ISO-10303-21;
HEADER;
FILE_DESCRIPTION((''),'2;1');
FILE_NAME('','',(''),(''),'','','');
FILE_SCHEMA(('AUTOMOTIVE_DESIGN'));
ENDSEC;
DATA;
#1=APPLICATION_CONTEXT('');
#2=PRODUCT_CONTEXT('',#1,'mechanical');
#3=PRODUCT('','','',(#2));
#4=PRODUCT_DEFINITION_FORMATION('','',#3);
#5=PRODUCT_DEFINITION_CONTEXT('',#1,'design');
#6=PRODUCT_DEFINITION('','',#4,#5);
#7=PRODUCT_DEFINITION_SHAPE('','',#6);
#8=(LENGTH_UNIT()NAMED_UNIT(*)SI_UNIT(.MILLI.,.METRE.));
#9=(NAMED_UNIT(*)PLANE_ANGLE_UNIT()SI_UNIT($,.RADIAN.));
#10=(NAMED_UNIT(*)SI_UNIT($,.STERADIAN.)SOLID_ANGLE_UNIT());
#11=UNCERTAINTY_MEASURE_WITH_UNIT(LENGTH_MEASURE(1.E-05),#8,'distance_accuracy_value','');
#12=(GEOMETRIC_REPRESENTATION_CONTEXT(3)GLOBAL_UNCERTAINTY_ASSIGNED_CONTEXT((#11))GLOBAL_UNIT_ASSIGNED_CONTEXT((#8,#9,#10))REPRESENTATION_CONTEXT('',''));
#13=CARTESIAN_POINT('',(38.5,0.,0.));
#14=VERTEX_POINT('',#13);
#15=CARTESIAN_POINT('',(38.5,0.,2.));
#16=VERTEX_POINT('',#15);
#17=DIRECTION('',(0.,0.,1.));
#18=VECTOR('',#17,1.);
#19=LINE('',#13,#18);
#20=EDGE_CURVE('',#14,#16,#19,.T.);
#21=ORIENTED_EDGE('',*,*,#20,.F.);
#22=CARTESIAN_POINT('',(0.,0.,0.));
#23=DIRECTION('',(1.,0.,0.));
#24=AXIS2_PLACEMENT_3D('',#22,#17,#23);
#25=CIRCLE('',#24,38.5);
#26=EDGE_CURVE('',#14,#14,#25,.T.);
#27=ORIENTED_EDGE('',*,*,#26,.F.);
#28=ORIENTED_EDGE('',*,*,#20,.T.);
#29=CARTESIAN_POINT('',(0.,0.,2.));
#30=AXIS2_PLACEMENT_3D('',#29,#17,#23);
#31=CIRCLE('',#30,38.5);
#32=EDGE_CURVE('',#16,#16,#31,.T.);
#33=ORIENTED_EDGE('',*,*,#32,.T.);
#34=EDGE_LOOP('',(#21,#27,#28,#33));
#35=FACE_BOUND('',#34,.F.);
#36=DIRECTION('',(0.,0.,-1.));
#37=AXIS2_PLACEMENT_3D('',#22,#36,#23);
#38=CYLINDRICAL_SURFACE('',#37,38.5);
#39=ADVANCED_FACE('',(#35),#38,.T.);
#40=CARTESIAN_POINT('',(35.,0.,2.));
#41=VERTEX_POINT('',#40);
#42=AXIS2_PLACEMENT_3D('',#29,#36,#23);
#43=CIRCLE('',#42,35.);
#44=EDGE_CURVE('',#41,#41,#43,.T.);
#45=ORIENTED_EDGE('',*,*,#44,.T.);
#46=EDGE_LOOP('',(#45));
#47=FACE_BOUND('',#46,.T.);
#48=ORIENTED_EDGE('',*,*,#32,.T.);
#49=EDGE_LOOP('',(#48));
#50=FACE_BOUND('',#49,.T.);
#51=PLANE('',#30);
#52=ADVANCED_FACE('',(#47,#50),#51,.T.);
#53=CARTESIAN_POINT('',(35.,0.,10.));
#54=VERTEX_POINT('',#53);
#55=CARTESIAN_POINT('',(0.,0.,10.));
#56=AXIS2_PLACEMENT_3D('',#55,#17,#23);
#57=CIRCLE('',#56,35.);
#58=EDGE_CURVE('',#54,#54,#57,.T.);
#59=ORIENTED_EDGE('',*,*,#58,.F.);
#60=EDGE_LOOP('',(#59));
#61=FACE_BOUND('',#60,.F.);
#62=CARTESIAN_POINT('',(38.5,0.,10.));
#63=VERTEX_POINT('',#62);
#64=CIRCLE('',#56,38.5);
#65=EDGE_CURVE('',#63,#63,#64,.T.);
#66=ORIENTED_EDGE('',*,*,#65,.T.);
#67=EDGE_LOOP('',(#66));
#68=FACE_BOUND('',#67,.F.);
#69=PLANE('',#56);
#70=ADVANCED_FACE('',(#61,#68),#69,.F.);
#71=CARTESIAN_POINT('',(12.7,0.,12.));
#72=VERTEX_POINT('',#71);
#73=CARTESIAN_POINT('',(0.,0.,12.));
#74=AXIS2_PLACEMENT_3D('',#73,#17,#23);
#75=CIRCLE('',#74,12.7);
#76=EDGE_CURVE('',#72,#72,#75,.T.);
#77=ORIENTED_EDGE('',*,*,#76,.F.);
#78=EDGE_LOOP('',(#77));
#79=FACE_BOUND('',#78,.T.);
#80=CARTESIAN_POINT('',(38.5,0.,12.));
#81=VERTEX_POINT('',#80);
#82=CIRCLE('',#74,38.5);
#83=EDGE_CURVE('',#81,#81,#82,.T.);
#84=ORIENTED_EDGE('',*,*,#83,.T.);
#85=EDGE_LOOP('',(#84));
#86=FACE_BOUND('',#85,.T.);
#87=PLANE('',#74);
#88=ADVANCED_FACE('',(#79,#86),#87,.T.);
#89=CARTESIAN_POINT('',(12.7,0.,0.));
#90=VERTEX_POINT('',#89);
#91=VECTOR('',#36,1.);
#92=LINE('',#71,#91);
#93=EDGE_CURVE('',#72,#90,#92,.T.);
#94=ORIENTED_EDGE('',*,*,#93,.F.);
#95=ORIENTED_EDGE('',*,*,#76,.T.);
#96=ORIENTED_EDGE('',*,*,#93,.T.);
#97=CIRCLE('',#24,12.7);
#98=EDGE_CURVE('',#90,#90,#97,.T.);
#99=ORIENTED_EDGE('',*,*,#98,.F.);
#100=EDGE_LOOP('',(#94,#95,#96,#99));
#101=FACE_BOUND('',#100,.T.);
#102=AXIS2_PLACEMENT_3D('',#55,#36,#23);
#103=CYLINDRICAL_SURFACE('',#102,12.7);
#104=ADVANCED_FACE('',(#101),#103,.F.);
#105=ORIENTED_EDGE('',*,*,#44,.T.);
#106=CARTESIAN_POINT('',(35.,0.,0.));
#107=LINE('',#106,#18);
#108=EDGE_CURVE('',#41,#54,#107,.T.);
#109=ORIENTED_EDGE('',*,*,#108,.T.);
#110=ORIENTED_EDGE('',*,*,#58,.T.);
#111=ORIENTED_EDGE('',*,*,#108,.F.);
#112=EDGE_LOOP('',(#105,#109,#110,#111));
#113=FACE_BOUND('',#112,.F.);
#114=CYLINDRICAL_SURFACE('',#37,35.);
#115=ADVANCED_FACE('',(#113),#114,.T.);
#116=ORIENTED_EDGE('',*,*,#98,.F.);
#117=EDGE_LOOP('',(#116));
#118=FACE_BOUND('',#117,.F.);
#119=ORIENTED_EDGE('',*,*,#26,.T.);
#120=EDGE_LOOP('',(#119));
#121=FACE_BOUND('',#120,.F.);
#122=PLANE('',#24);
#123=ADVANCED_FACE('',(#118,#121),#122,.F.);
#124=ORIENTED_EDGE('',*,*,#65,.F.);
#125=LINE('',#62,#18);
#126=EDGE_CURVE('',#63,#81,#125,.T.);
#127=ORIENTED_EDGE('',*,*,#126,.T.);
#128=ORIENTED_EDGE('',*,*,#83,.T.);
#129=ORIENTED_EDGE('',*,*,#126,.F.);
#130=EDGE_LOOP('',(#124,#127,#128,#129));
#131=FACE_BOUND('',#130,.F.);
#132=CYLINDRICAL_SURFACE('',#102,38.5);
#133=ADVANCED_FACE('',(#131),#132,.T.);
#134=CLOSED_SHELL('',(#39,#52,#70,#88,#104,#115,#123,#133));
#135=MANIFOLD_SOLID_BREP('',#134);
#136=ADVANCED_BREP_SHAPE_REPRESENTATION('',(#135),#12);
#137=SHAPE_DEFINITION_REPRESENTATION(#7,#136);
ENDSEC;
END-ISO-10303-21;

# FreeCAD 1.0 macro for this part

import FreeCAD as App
import Part
import Sketcher

V = App.Vector
Q = App.Units.Quantity

doc = App.newDocument("Part")
body = doc.addObject("PartDesign::Body", "Body")

# Sketch on XY plane
sketch1 = body.newObject("Sketcher::SketchObject", "Sketch")
sketch1.AttachmentSupport = (doc.getObject("XY_Plane"), [""])
sketch1.MapMode = "FlatFace"
sketch1.addGeometry([
    Part.Circle(V(0, 0, 0), V(0, 0, 1), 38),
    Part.Circle(V(0, 0, 0), V(0, 0, 1), 13),
], False)
sketch1.addConstraint([
    Sketcher.Constraint("Coincident", 0, 3, -1, 1),
    Sketcher.Constraint("Coincident", 1, 3, -1, 1),
    Sketcher.Constraint("Diameter", 0, Q("77 mm")),
    Sketcher.Constraint("Diameter", 1, Q("25.4 mm")),
])
pad1 = body.newObject("PartDesign::Pad", "Pad")
pad1.Profile = sketch1
pad1.Length = 2

# Sketch on XY plane
sketch2 = body.newObject("Sketcher::SketchObject", "Sketch001")
sketch2.AttachmentSupport = (doc.getObject("XY_Plane"), [""])
sketch2.MapMode = "FlatFace"
sketch2.addGeometry([
    Part.Circle(V(0, 0, 0), V(0, 0, 1), 35),
    Part.Circle(V(0, 0, 0), V(0, 0, 1), 13),
], False)
sketch2.addConstraint([
    Sketcher.Constraint("Coincident", 0, 3, -1, 1),
    Sketcher.Constraint("Coincident", 1, 3, -1, 1),
    Sketcher.Constraint("Diameter", 0, Q("70 mm")),
    Sketcher.Constraint("Diameter", 1, Q("25.4 mm")),
])
pad2 = body.newObject("PartDesign::Pad", "Pad001")
pad2.Profile = sketch2
pad2.Length = 10

# Sketch on XY plane
sketch3 = body.newObject("Sketcher::SketchObject", "Sketch002")
sketch3.AttachmentSupport = (doc.getObject("XY_Plane"), [""])
sketch3.MapMode = "FlatFace"
sketch3.AttachmentOffset = App.Placement(V(0, 0, 10), App.Rotation())
sketch3.addGeometry([
    Part.Circle(V(0, 0, 0), V(0, 0, 1), 38),
    Part.Circle(V(0, 0, 0), V(0, 0, 1), 13),
], False)
sketch3.addConstraint([
    Sketcher.Constraint("Coincident", 0, 3, -1, 1),
    Sketcher.Constraint("Coincident", 1, 3, -1, 1),
    Sketcher.Constraint("Diameter", 0, Q("77 mm")),
    Sketcher.Constraint("Diameter", 1, Q("25.4 mm")),
])
pad3 = body.newObject("PartDesign::Pad", "Pad002")
pad3.Profile = sketch3
pad3.Length = 2

doc.recompute()
